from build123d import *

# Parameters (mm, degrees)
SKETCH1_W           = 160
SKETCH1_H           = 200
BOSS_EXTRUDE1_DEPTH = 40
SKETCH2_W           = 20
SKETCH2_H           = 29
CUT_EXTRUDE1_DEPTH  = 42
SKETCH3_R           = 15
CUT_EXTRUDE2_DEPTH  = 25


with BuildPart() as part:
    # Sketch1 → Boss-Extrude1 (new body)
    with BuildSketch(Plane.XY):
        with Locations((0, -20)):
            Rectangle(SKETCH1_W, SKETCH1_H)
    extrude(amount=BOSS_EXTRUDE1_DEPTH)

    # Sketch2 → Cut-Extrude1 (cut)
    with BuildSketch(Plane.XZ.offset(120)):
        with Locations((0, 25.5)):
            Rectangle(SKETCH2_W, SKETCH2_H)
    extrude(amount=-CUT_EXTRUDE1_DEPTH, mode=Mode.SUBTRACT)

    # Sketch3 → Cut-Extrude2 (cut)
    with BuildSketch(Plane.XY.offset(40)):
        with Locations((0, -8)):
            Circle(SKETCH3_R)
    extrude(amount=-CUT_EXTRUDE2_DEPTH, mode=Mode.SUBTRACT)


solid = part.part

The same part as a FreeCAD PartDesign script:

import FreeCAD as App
import Part
import Sketcher
from FreeCAD import Vector

doc = App.newDocument("Part")
body = doc.addObject("PartDesign::Body", "Body")

sketch1 = body.newObject("Sketcher::SketchObject", "Sketch")
sketch1.AttachmentSupport = (doc.getObject("XY_Plane"), [""])
sketch1.MapMode = "FlatFace"
sketch1.addGeometry([
    Part.LineSegment(Vector(-80, 80, 0), Vector(-80, -120, 0)),
    Part.LineSegment(Vector(-80, -120, 0), Vector(80, -120, 0)),
    Part.LineSegment(Vector(80, -120, 0), Vector(80, 80, 0)),
    Part.LineSegment(Vector(80, 80, 0), Vector(-80, 80, 0)),
], False)
sketch1.addConstraint([
    Sketcher.Constraint("Coincident", 0, 2, 1, 1),
    Sketcher.Constraint("Coincident", 1, 2, 2, 1),
    Sketcher.Constraint("Coincident", 2, 2, 3, 1),
    Sketcher.Constraint("Coincident", 3, 2, 0, 1),
    Sketcher.Constraint("Vertical", 0),
    Sketcher.Constraint("Horizontal", 1),
    Sketcher.Constraint("Vertical", 2),
    Sketcher.Constraint("Horizontal", 3),
    Sketcher.Constraint("DistanceX", 1, 1, 1, 2, 160.0),
    Sketcher.Constraint("DistanceY", 0, 2, 0, 1, 200.0),
    Sketcher.Constraint("DistanceX", 0, 2, -1, 1, 80.0),
    Sketcher.Constraint("DistanceY", 0, 2, -1, 1, 120.0),
])
pad1 = body.newObject("PartDesign::Pad", "Pad")
pad1.Profile = sketch1
pad1.Length = 40

sketch2 = body.newObject("Sketcher::SketchObject", "Sketch001")
sketch2.AttachmentSupport = (doc.getObject("XZ_Plane"), [""])
sketch2.MapMode = "FlatFace"
sketch2.AttachmentOffset = App.Placement(Vector(0, 0, 120), App.Rotation())
sketch2.addGeometry([
    Part.LineSegment(Vector(-10, 40, 0), Vector(-10, 11, 0)),
    Part.LineSegment(Vector(-10, 11, 0), Vector(10, 11, 0)),
    Part.LineSegment(Vector(10, 11, 0), Vector(10, 40, 0)),
    Part.LineSegment(Vector(10, 40, 0), Vector(-10, 40, 0)),
], False)
sketch2.addConstraint([
    Sketcher.Constraint("Coincident", 0, 2, 1, 1),
    Sketcher.Constraint("Coincident", 1, 2, 2, 1),
    Sketcher.Constraint("Coincident", 2, 2, 3, 1),
    Sketcher.Constraint("Coincident", 3, 2, 0, 1),
    Sketcher.Constraint("Vertical", 0),
    Sketcher.Constraint("Horizontal", 1),
    Sketcher.Constraint("Vertical", 2),
    Sketcher.Constraint("Horizontal", 3),
    Sketcher.Constraint("DistanceX", 1, 1, 1, 2, 20.0),
    Sketcher.Constraint("DistanceY", 0, 2, 0, 1, 29.0),
    Sketcher.Constraint("DistanceX", 0, 2, -1, 1, 10.0),
    Sketcher.Constraint("DistanceY", -1, 1, 0, 2, 11.0),
])
pocket1 = body.newObject("PartDesign::Pocket", "Pocket")
pocket1.Profile = sketch2
pocket1.Length = 42

sketch3 = body.newObject("Sketcher::SketchObject", "Sketch002")
sketch3.AttachmentSupport = (doc.getObject("XY_Plane"), [""])
sketch3.MapMode = "FlatFace"
sketch3.AttachmentOffset = App.Placement(Vector(0, 0, 40), App.Rotation())
sketch3.addGeometry(Part.Circle(Vector(0, -8, 0), Vector(0, 0, 1), 15), False)
sketch3.addConstraint([
    Sketcher.Constraint("PointOnObject", 0, 3, -2),
    Sketcher.Constraint("Diameter", 0, 30.0),
    Sketcher.Constraint("DistanceY", 0, 3, -1, 1, 8.0),
])
pocket2 = body.newObject("PartDesign::Pocket", "Pocket001")
pocket2.Profile = sketch3
pocket2.Length = 25

doc.recompute()
